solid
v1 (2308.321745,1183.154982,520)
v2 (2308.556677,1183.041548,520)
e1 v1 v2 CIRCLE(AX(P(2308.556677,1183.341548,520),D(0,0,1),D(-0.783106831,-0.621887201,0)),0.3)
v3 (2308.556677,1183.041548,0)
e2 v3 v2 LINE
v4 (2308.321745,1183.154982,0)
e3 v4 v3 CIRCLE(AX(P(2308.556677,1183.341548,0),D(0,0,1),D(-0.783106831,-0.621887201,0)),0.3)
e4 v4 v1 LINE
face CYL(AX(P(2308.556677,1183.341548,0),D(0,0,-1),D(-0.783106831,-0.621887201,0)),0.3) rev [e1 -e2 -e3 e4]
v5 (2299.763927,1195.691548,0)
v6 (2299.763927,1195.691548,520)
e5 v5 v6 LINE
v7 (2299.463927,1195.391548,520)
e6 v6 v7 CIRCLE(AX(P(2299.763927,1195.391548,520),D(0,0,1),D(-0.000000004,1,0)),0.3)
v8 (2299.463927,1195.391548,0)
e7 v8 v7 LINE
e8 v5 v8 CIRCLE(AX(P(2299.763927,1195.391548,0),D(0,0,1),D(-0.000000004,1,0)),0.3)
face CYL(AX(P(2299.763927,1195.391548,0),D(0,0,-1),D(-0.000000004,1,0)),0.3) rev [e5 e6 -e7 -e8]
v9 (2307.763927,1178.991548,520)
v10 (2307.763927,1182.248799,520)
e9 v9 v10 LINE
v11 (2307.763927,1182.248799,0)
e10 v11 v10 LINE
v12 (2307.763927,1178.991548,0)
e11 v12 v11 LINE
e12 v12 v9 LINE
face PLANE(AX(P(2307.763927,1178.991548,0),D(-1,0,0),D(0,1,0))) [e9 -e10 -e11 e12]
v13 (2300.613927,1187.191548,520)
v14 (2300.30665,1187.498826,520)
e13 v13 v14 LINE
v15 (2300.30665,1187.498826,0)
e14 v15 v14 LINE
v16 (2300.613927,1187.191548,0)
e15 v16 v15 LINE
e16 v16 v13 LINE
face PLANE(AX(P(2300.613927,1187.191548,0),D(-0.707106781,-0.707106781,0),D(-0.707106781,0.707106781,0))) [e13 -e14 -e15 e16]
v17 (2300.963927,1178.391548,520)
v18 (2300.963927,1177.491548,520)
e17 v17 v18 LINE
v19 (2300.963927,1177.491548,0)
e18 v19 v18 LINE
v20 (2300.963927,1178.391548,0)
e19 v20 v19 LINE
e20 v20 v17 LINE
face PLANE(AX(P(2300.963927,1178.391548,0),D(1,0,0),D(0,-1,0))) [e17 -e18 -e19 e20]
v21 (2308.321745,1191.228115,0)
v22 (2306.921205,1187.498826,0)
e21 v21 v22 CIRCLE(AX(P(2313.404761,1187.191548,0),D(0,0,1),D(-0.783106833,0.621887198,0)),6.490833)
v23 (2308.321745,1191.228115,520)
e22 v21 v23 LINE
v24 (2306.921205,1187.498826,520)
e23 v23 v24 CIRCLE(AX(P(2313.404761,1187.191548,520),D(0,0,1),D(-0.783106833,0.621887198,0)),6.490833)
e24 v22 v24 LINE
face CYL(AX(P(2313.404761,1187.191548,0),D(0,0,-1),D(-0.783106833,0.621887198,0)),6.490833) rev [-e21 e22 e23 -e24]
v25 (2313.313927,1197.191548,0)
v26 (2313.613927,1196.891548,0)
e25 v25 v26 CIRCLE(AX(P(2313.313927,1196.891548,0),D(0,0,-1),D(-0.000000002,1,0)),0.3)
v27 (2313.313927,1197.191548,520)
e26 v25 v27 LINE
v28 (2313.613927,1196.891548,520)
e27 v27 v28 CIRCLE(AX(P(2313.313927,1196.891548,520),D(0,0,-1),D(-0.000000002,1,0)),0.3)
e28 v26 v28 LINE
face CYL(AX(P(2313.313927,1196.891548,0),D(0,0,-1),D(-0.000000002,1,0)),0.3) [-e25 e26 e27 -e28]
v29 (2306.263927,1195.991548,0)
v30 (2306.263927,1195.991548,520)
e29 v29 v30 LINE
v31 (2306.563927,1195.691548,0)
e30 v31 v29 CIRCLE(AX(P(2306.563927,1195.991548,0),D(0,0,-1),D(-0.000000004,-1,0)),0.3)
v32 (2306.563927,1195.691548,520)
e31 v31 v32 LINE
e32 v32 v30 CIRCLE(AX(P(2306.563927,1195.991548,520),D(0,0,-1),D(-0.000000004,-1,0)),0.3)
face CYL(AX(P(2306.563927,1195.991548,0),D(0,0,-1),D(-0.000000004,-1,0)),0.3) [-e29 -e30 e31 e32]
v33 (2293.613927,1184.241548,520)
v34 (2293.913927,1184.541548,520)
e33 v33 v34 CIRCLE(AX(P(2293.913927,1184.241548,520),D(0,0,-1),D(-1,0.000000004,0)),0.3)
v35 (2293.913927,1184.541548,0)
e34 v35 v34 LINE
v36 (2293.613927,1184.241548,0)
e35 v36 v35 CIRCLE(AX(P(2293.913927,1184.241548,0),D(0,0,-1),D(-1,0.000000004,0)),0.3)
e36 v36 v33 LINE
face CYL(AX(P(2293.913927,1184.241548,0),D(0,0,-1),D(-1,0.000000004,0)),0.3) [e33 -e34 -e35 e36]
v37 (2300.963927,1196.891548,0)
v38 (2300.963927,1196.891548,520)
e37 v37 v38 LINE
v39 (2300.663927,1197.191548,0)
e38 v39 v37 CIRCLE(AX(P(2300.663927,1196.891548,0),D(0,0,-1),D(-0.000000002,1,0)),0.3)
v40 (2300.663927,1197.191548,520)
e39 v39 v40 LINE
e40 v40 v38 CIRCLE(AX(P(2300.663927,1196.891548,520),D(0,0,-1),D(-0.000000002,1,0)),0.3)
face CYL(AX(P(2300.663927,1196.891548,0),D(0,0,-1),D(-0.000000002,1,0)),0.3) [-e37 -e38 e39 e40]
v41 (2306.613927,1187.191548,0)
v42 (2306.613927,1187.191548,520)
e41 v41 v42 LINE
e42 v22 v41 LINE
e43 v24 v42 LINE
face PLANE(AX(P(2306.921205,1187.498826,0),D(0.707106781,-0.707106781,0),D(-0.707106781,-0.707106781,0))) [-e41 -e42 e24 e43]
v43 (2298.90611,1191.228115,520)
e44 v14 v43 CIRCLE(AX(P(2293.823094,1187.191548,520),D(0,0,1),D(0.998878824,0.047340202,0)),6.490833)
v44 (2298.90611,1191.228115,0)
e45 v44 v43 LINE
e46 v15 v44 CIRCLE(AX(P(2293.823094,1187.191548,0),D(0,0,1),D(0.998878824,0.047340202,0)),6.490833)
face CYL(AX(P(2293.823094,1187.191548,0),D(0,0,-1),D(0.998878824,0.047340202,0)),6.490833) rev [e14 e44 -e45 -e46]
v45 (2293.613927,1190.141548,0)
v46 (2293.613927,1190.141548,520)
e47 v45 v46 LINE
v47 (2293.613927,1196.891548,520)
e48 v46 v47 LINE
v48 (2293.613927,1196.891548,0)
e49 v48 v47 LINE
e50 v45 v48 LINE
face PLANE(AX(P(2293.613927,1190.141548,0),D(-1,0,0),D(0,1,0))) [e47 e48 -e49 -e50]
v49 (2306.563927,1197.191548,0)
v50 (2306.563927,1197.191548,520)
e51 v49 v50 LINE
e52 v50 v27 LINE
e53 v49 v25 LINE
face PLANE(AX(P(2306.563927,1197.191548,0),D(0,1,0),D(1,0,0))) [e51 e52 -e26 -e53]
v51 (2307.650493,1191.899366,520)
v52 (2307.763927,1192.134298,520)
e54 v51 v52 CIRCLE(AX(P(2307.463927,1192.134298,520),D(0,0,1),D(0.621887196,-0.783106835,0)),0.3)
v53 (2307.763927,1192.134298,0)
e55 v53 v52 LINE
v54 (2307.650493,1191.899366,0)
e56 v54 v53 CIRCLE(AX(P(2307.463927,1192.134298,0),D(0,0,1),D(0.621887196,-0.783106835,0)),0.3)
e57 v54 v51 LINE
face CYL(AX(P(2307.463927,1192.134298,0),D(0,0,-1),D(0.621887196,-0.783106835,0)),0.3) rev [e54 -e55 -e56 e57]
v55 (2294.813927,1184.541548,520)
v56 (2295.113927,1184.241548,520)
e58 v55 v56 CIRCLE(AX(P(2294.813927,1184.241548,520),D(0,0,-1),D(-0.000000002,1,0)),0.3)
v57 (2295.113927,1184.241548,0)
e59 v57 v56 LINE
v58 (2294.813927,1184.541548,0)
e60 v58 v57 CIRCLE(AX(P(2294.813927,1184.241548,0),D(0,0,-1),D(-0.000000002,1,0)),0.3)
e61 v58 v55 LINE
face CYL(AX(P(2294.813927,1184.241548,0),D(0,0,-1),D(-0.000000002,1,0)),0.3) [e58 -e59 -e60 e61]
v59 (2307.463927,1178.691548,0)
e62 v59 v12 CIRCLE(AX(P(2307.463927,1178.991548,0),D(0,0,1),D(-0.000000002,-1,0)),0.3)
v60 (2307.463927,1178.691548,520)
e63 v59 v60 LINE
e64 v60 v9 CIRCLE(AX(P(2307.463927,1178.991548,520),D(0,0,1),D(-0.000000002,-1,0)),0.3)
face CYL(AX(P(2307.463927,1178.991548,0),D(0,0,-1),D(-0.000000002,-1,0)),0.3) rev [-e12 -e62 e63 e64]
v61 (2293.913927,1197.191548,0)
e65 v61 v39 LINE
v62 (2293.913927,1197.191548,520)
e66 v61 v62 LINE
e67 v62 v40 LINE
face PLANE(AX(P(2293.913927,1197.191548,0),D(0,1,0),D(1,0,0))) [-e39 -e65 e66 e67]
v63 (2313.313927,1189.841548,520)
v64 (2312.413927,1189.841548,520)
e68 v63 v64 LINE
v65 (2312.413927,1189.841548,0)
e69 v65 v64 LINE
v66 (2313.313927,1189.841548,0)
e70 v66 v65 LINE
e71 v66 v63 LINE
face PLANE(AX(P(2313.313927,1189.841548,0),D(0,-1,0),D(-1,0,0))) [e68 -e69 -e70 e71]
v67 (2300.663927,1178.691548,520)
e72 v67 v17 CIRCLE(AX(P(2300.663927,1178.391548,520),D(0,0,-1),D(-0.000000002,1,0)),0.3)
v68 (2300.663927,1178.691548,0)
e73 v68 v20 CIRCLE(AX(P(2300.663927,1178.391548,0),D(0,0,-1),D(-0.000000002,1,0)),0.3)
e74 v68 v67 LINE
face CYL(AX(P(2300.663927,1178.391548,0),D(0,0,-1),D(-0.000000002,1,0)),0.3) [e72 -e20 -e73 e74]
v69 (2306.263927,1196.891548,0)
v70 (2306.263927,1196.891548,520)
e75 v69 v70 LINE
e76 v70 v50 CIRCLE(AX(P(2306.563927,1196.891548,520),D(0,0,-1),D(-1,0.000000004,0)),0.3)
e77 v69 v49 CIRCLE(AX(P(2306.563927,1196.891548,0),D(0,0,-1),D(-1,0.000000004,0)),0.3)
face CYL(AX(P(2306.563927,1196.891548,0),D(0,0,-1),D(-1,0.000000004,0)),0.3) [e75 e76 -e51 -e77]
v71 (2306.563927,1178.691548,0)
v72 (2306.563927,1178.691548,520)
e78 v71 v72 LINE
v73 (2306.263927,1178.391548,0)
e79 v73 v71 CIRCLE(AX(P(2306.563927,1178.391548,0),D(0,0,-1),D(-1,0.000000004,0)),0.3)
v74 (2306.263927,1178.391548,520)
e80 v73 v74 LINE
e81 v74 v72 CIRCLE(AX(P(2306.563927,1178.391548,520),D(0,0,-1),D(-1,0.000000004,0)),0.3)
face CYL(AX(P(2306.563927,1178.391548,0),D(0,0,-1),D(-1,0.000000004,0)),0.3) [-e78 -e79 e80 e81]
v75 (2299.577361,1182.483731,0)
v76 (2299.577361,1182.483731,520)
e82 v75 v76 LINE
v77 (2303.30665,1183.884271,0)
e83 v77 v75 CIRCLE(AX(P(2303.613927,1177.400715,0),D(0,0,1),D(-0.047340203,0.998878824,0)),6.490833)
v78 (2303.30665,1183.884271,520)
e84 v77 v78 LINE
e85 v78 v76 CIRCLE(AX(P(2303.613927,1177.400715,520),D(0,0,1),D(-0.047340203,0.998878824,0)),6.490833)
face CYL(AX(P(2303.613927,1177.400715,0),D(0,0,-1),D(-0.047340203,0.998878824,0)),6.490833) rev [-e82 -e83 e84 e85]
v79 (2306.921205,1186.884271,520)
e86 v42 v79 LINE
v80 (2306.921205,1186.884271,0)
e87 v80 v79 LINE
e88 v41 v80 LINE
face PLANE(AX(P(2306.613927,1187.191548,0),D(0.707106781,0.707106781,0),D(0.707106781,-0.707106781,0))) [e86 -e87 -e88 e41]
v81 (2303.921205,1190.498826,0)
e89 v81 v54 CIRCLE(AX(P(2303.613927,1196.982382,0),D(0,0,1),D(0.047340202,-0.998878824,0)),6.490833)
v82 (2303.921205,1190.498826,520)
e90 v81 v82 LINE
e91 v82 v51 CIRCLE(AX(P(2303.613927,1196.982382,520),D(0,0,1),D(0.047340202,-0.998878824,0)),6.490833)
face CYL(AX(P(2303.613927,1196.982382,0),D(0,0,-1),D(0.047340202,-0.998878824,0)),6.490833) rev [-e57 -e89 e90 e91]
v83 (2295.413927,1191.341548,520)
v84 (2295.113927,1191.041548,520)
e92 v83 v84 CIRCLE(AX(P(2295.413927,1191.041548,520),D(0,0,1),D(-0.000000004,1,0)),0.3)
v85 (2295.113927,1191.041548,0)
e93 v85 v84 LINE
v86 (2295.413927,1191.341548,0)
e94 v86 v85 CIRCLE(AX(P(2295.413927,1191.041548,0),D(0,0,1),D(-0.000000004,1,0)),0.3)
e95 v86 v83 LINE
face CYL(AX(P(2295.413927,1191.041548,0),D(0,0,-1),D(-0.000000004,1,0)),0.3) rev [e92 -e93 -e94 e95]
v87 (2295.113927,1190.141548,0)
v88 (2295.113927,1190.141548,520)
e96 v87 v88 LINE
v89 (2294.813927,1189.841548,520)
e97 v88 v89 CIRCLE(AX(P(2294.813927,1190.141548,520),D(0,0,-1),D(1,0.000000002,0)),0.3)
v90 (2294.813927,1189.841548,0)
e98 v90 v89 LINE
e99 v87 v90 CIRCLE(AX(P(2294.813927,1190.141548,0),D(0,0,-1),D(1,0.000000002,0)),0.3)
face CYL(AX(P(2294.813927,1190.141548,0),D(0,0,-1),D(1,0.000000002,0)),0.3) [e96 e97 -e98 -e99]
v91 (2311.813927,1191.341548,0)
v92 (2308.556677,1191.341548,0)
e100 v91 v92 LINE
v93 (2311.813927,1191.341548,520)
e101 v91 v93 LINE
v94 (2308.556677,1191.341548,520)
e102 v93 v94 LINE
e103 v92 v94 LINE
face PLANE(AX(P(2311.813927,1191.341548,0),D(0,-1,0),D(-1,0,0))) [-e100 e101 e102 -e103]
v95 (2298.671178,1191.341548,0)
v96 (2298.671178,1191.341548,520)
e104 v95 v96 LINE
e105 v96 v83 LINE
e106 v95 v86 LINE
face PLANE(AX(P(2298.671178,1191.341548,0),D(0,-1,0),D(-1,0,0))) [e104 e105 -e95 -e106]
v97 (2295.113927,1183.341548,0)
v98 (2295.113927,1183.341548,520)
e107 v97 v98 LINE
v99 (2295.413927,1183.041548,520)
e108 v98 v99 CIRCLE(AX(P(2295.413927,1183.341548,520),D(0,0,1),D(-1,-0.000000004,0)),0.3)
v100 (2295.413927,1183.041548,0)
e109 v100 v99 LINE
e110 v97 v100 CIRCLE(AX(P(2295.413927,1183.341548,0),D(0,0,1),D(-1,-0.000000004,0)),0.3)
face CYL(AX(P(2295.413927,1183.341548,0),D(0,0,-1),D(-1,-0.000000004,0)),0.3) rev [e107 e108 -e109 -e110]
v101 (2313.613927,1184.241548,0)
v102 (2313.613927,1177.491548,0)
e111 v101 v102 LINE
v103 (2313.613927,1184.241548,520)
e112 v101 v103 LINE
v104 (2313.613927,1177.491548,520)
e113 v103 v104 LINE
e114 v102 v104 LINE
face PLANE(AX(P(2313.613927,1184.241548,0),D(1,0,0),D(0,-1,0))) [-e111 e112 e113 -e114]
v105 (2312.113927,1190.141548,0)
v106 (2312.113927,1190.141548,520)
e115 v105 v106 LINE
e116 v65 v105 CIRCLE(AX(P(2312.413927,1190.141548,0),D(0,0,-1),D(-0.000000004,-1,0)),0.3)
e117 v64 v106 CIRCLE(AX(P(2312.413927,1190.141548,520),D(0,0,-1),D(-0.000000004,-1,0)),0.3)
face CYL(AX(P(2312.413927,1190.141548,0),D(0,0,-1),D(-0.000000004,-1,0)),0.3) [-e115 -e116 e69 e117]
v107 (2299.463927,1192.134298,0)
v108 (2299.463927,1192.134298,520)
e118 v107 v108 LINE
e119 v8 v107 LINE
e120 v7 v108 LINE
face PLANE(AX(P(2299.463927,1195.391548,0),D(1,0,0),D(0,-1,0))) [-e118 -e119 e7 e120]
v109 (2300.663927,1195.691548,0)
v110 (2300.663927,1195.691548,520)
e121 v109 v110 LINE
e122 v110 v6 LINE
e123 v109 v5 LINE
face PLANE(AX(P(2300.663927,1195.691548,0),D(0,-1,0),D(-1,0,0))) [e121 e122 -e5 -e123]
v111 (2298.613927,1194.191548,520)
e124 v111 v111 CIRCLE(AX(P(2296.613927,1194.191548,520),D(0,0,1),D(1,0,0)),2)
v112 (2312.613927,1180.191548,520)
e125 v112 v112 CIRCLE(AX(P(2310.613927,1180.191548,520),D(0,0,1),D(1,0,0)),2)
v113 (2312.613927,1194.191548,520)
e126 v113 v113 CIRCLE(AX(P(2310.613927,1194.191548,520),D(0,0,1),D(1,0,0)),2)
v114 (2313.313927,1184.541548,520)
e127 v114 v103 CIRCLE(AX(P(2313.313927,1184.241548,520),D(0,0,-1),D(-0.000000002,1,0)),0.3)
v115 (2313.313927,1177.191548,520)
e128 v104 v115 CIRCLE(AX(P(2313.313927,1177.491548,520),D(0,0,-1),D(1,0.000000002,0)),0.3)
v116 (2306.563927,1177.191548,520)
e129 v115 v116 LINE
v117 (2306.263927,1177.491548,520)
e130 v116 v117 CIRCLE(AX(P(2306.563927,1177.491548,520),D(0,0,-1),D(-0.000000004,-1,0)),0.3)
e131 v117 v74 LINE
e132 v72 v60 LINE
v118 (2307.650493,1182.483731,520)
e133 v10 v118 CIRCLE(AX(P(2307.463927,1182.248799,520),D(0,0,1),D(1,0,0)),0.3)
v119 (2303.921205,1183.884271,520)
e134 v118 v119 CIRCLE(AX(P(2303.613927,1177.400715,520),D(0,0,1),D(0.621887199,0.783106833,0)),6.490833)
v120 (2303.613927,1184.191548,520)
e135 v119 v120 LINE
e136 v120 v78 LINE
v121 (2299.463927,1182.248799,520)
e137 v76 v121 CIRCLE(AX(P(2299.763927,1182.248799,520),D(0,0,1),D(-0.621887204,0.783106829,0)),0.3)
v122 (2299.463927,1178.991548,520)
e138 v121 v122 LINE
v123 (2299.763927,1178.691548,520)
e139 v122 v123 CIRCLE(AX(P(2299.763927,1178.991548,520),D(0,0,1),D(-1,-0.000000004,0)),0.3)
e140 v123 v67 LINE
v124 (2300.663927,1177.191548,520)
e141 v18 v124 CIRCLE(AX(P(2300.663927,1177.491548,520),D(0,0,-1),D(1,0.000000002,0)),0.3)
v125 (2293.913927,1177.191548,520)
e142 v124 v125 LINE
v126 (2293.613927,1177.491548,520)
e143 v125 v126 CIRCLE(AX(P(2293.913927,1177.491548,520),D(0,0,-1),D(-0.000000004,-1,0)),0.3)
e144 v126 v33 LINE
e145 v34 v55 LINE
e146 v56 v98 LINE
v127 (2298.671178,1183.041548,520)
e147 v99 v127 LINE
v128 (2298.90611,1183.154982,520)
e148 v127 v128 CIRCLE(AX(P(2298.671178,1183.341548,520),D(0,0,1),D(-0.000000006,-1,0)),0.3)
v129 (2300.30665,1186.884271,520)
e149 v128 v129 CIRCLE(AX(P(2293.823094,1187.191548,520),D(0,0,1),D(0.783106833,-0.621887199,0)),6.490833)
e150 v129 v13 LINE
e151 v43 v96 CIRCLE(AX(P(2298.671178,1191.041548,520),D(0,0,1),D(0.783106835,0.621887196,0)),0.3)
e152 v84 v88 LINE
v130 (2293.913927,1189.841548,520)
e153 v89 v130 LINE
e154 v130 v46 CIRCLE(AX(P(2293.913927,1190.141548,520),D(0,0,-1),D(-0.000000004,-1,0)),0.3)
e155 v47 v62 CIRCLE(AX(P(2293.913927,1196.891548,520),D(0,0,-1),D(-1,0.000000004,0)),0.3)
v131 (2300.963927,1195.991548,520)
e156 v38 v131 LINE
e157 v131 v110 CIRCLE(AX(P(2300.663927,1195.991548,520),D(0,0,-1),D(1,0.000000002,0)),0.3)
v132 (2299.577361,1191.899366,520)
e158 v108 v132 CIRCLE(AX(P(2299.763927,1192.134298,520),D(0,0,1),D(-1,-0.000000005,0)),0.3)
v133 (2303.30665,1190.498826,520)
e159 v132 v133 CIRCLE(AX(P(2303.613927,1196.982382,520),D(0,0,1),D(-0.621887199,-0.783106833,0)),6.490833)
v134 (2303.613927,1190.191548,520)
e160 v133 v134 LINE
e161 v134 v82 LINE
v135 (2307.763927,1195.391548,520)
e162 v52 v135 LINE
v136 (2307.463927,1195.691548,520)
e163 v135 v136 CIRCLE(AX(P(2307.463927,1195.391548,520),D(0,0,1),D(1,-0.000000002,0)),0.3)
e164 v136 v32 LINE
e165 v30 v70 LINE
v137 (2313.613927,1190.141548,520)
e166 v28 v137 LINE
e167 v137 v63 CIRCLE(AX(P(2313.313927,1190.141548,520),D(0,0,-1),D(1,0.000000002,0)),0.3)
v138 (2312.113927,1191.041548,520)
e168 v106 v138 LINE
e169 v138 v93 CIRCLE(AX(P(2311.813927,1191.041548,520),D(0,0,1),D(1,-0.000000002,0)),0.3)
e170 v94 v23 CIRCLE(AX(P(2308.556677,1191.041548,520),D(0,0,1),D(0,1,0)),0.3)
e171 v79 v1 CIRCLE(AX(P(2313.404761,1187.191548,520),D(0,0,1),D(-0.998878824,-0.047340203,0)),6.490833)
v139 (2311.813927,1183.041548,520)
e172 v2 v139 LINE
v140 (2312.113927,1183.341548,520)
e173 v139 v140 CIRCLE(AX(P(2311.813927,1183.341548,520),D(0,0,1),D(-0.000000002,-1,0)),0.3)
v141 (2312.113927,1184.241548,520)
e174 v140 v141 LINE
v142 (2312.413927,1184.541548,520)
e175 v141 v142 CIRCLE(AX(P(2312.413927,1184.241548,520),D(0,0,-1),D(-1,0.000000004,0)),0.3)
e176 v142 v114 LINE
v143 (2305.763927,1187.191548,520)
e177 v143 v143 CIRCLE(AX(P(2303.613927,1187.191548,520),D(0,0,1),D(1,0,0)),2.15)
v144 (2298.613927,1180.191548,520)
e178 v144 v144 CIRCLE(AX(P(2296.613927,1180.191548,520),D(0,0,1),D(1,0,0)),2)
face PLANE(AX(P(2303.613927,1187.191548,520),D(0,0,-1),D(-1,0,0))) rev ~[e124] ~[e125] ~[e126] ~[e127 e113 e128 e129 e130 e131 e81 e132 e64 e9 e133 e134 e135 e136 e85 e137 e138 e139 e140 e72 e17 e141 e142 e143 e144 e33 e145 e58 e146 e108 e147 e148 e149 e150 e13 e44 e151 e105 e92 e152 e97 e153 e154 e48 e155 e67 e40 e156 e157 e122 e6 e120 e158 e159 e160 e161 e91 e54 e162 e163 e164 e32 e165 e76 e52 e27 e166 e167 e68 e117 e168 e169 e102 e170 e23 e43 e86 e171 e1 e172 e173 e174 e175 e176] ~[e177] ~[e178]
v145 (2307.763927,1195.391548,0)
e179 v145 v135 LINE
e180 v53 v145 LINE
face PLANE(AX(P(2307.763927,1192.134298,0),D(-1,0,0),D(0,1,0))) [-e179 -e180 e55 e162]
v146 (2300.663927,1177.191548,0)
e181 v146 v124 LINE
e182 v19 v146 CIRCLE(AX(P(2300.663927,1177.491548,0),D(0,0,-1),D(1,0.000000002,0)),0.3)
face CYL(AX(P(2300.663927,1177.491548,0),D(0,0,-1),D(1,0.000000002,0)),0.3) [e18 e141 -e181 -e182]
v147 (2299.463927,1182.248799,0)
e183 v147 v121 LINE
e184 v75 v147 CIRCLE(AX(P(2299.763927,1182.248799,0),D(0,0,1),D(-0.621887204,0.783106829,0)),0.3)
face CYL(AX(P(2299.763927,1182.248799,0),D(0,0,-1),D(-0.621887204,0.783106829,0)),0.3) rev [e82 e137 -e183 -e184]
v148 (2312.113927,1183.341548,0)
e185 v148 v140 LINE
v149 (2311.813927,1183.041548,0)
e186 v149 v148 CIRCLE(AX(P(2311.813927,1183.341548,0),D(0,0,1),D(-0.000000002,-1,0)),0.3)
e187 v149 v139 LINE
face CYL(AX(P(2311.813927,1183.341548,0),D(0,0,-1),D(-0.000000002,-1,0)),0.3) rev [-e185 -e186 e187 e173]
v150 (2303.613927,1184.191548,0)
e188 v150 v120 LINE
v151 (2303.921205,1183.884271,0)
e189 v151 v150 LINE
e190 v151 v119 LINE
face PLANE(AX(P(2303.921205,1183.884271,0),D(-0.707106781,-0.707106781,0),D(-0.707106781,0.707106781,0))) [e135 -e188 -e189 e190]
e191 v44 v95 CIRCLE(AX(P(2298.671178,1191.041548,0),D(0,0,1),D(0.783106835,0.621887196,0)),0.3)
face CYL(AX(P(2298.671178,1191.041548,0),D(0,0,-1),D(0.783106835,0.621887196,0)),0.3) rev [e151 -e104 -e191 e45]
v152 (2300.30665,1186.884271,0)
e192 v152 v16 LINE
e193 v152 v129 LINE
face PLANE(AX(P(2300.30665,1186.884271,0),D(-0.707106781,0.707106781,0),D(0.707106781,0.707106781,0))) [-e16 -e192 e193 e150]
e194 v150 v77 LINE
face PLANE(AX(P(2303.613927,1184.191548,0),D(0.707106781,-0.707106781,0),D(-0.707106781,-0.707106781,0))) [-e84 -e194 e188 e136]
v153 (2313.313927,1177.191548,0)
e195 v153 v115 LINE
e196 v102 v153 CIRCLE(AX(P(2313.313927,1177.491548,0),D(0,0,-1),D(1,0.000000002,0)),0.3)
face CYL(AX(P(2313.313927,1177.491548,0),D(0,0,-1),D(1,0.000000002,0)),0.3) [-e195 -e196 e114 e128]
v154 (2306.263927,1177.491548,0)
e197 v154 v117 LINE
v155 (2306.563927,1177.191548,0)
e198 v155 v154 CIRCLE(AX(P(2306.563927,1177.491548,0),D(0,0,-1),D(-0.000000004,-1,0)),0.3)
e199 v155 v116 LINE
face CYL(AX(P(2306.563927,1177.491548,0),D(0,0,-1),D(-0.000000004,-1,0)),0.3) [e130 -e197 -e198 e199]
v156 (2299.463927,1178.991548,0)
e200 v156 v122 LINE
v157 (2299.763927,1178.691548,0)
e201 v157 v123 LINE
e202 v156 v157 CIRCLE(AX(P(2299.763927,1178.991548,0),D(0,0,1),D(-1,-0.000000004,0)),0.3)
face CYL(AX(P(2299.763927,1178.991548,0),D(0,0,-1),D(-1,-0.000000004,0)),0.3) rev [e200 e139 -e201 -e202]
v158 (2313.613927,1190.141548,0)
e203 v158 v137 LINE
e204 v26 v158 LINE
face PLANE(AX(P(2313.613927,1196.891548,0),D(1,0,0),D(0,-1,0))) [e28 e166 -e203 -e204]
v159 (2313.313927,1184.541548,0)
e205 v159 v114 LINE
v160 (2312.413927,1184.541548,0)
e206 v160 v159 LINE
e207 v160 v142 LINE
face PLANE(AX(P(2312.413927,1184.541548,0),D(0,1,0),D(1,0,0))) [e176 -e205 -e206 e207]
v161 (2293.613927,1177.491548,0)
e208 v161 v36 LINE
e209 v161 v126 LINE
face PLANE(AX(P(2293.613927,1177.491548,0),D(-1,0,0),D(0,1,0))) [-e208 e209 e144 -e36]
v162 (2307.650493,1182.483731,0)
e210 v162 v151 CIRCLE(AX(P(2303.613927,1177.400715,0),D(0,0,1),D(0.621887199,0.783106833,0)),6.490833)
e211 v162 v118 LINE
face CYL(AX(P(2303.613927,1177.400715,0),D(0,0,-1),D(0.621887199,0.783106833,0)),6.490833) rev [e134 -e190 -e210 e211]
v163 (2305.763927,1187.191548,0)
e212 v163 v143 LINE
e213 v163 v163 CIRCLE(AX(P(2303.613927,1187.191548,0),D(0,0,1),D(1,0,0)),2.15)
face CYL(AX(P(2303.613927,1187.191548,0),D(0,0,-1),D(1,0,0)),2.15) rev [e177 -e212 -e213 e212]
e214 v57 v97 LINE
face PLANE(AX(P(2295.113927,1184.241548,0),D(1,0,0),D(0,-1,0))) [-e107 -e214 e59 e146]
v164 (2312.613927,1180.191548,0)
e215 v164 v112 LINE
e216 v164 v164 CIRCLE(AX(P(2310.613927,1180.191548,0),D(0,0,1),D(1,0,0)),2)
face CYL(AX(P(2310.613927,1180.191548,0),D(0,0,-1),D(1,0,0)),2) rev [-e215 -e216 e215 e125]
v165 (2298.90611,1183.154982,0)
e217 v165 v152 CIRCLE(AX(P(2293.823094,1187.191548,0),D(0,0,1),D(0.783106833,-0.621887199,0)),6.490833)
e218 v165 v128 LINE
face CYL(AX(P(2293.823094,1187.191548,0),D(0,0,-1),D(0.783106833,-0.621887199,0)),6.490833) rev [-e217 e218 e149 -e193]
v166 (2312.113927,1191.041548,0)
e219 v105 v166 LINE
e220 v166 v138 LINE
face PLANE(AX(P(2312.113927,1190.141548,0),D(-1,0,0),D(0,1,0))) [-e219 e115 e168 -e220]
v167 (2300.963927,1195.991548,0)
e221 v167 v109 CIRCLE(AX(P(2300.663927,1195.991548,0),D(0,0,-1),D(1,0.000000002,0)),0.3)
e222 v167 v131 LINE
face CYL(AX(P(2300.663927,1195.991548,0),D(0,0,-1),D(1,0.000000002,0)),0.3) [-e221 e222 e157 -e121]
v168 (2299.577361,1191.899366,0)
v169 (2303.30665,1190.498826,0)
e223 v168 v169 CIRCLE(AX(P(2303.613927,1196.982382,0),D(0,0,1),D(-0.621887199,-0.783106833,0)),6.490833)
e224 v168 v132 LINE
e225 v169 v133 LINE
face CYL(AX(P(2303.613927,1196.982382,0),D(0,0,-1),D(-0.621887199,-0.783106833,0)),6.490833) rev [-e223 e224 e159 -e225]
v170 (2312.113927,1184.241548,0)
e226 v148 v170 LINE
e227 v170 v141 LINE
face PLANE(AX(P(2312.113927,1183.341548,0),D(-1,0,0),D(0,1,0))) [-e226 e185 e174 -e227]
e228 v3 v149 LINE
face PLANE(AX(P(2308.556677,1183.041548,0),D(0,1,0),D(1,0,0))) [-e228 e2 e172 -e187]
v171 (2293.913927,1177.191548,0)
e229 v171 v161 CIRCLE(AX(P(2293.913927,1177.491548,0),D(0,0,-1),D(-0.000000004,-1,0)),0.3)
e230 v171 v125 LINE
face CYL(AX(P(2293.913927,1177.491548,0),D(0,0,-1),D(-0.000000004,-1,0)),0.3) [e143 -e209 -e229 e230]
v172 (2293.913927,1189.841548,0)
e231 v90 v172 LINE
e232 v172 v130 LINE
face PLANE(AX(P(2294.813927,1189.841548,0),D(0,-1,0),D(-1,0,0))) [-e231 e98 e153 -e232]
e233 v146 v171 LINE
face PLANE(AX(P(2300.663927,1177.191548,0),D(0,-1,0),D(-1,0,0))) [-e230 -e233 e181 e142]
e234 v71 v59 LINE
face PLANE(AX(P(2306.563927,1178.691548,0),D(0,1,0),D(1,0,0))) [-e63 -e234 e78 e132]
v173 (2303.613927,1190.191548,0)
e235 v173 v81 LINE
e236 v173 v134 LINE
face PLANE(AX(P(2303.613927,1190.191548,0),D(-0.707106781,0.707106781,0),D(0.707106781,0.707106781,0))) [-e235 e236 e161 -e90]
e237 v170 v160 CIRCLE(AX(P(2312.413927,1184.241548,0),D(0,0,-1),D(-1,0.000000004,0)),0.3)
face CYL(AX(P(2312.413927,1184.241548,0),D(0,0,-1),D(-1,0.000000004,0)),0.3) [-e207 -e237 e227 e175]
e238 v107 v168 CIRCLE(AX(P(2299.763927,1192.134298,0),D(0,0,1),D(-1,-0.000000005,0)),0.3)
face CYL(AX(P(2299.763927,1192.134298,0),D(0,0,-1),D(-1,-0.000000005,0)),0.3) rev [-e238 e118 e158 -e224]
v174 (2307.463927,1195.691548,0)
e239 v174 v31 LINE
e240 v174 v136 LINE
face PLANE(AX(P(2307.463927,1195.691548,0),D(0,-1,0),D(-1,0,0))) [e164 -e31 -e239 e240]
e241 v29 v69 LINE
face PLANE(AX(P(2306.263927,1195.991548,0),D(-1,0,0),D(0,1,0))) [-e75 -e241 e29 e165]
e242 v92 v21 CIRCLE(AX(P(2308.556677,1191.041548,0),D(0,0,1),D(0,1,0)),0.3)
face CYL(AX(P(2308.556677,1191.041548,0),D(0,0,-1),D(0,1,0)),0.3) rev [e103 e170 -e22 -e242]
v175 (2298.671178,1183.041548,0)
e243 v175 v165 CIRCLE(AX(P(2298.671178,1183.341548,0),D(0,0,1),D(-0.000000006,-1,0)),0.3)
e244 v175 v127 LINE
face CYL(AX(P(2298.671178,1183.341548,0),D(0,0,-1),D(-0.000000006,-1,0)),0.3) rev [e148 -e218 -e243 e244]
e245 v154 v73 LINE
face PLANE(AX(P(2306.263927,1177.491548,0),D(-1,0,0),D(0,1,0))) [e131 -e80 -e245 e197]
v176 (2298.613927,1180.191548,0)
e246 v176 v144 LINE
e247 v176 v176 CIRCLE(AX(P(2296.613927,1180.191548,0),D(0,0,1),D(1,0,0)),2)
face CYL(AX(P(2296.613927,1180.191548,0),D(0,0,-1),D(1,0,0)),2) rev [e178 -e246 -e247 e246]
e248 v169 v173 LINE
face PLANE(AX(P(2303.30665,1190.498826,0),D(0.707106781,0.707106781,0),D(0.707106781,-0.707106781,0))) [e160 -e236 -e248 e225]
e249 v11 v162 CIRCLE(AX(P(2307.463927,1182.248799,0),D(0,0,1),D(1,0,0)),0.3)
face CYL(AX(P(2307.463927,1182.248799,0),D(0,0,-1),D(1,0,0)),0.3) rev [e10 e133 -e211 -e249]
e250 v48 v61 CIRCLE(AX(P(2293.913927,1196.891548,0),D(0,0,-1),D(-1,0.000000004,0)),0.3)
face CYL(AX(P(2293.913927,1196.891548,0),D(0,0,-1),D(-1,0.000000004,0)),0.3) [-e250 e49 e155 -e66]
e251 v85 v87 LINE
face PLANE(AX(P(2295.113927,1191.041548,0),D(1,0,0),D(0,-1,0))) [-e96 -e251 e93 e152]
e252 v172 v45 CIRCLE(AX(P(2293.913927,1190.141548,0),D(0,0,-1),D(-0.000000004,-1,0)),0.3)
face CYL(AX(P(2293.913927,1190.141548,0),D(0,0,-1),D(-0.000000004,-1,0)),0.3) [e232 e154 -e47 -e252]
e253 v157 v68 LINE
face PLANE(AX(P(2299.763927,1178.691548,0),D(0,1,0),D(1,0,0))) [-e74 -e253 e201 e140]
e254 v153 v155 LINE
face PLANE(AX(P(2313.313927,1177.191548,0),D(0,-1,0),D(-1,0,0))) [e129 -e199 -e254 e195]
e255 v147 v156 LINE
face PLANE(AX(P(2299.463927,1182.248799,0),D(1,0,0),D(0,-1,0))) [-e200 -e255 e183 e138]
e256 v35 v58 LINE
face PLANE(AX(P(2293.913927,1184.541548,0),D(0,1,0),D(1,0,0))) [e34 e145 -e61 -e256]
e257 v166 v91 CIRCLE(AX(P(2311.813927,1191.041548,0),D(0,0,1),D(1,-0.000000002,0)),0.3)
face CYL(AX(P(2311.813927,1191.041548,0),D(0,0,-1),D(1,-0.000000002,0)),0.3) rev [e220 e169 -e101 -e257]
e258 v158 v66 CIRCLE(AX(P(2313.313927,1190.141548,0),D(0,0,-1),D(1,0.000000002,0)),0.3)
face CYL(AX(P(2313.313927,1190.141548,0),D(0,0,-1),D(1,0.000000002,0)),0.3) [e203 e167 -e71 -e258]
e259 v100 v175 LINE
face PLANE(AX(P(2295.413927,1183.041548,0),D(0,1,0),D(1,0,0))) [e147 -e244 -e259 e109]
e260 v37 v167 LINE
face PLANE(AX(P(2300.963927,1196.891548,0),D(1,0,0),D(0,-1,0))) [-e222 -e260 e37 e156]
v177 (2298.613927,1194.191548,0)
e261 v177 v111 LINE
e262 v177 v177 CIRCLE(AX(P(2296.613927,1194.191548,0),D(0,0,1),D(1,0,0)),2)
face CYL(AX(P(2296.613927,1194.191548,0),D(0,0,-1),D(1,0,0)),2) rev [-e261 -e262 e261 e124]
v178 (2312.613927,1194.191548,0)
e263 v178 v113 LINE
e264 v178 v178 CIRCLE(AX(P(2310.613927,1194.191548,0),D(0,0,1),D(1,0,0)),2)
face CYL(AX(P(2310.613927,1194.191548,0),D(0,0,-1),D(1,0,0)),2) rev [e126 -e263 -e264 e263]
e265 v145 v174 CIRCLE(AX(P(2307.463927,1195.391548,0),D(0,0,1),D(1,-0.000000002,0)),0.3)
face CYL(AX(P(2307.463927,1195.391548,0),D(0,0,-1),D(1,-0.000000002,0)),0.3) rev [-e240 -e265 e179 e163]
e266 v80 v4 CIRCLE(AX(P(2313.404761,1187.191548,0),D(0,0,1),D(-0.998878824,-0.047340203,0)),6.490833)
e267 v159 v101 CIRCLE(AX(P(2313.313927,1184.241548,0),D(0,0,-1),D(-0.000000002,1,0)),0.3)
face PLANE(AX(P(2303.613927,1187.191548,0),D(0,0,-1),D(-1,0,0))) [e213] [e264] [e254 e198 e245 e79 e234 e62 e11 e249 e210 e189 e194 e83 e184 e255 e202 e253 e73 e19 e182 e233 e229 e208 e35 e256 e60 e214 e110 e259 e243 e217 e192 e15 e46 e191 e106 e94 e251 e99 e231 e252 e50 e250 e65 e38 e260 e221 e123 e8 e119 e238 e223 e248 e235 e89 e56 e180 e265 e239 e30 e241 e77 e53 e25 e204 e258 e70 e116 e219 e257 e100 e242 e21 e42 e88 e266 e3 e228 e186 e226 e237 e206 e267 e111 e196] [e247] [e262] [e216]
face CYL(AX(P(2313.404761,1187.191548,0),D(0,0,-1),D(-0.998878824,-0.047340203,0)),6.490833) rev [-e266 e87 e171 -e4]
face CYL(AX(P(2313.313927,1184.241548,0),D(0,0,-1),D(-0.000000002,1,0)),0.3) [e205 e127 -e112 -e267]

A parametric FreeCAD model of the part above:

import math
import FreeCAD as App
import Part
import Sketcher

V = App.Vector

doc = App.newDocument("Part")
params = doc.addObject("Spreadsheet::Sheet", "Params")
for row, (alias, value) in enumerate([
    ("sketch1_diameter", "4 mm"),
    ("sketch1_diameter2", "4.3 mm"),
    ("sketch1_radius", "0.3 mm"),
    ("sketch1_width", "0.9 mm"),
    ("sketch1_width2", "6.75 mm"),
    ("pad1_length", "520 mm"),
], start=1):
    params.set(f"A{row}", alias)
    params.set(f"B{row}", "=" + value)
    params.setAlias(f"B{row}", alias)

body = doc.addObject("PartDesign::Body", "Body")

sketch1 = body.newObject("Sketcher::SketchObject", "Sketch")
sketch1.AttachmentSupport = (doc.getObject("XY_Plane"), [""])
sketch1.MapMode = "FlatFace"
sketch1.addGeometry([
    Part.LineSegment(V(2307.76, 1195.39, 0), V(2307.76, 1192.13, 0)),
    Part.ArcOfCircle(Part.Circle(V(2307.46, 1192.13, 0), V(0, 0, 1), 0.3), math.radians(-52), math.radians(0)),
    Part.ArcOfCircle(Part.Circle(V(2303.61, 1196.98, 0), V(0, 0, 1), 6.49), math.radians(-87), math.radians(-52)),
    Part.LineSegment(V(2303.92, 1190.5, 0), V(2303.61, 1190.19, 0)),
    Part.LineSegment(V(2303.61, 1190.19, 0), V(2303.31, 1190.5, 0)),
    Part.ArcOfCircle(Part.Circle(V(2303.61, 1196.98, 0), V(0, 0, 1), 6.49), math.radians(-128), math.radians(-93)),
    Part.ArcOfCircle(Part.Circle(V(2299.76, 1192.13, 0), V(0, 0, 1), 0.3), math.radians(-180), math.radians(-128)),
    Part.LineSegment(V(2299.46, 1192.13, 0), V(2299.46, 1195.39, 0)),
    Part.ArcOfCircle(Part.Circle(V(2299.76, 1195.39, 0), V(0, 0, 1), 0.3), math.radians(90), math.radians(180)),
    Part.LineSegment(V(2299.76, 1195.69, 0), V(2300.66, 1195.69, 0)),
    Part.ArcOfCircle(Part.Circle(V(2300.66, 1195.99, 0), V(0, 0, 1), 0.3), math.radians(-90), math.radians(0)),
    Part.LineSegment(V(2300.96, 1195.99, 0), V(2300.96, 1196.89, 0)),
    Part.ArcOfCircle(Part.Circle(V(2300.66, 1196.89, 0), V(0, 0, 1), 0.3), math.radians(0), math.radians(90)),
    Part.LineSegment(V(2300.66, 1197.19, 0), V(2293.91, 1197.19, 0)),
    Part.ArcOfCircle(Part.Circle(V(2293.91, 1196.89, 0), V(0, 0, 1), 0.3), math.radians(90), math.radians(180)),
    Part.LineSegment(V(2293.61, 1196.89, 0), V(2293.61, 1190.14, 0)),
    Part.ArcOfCircle(Part.Circle(V(2293.91, 1190.14, 0), V(0, 0, 1), 0.3), math.radians(-180), math.radians(-90)),
    Part.LineSegment(V(2293.91, 1189.84, 0), V(2294.81, 1189.84, 0)),
    Part.ArcOfCircle(Part.Circle(V(2294.81, 1190.14, 0), V(0, 0, 1), 0.3), math.radians(-90), math.radians(0)),
    Part.LineSegment(V(2295.11, 1190.14, 0), V(2295.11, 1191.04, 0)),
    Part.ArcOfCircle(Part.Circle(V(2295.41, 1191.04, 0), V(0, 0, 1), 0.3), math.radians(90), math.radians(180)),
    Part.LineSegment(V(2295.41, 1191.34, 0), V(2298.67, 1191.34, 0)),
    Part.ArcOfCircle(Part.Circle(V(2298.67, 1191.04, 0), V(0, 0, 1), 0.3), math.radians(38), math.radians(90)),
    Part.ArcOfCircle(Part.Circle(V(2293.82, 1187.19, 0), V(0, 0, 1), 6.49), math.radians(3), math.radians(38)),
    Part.LineSegment(V(2300.31, 1187.5, 0), V(2300.61, 1187.19, 0)),
    Part.LineSegment(V(2300.61, 1187.19, 0), V(2300.31, 1186.88, 0)),
    Part.ArcOfCircle(Part.Circle(V(2293.82, 1187.19, 0), V(0, 0, 1), 6.49), math.radians(-38), math.radians(-3)),
    Part.ArcOfCircle(Part.Circle(V(2298.67, 1183.34, 0), V(0, 0, 1), 0.3), math.radians(-90), math.radians(-38)),
    Part.LineSegment(V(2298.67, 1183.04, 0), V(2295.41, 1183.04, 0)),
    Part.ArcOfCircle(Part.Circle(V(2295.41, 1183.34, 0), V(0, 0, 1), 0.3), math.radians(-180), math.radians(-90)),
    Part.LineSegment(V(2295.11, 1183.34, 0), V(2295.11, 1184.24, 0)),
    Part.ArcOfCircle(Part.Circle(V(2294.81, 1184.24, 0), V(0, 0, 1), 0.3), math.radians(0), math.radians(90)),
    Part.LineSegment(V(2294.81, 1184.54, 0), V(2293.91, 1184.54, 0)),
    Part.ArcOfCircle(Part.Circle(V(2293.91, 1184.24, 0), V(0, 0, 1), 0.3), math.radians(90), math.radians(180)),
    Part.LineSegment(V(2293.61, 1184.24, 0), V(2293.61, 1177.49, 0)),
    Part.ArcOfCircle(Part.Circle(V(2293.91, 1177.49, 0), V(0, 0, 1), 0.3), math.radians(-180), math.radians(-90)),
    Part.LineSegment(V(2293.91, 1177.19, 0), V(2300.66, 1177.19, 0)),
    Part.ArcOfCircle(Part.Circle(V(2300.66, 1177.49, 0), V(0, 0, 1), 0.3), math.radians(-90), math.radians(0)),
    Part.LineSegment(V(2300.96, 1177.49, 0), V(2300.96, 1178.39, 0)),
    Part.ArcOfCircle(Part.Circle(V(2300.66, 1178.39, 0), V(0, 0, 1), 0.3), math.radians(0), math.radians(90)),
    Part.LineSegment(V(2300.66, 1178.69, 0), V(2299.76, 1178.69, 0)),
    Part.ArcOfCircle(Part.Circle(V(2299.76, 1178.99, 0), V(0, 0, 1), 0.3), math.radians(-180), math.radians(-90)),
    Part.LineSegment(V(2299.46, 1178.99, 0), V(2299.46, 1182.25, 0)),
    Part.ArcOfCircle(Part.Circle(V(2299.76, 1182.25, 0), V(0, 0, 1), 0.3), math.radians(128), math.radians(180)),
    Part.ArcOfCircle(Part.Circle(V(2303.61, 1177.4, 0), V(0, 0, 1), 6.49), math.radians(93), math.radians(128)),
    Part.LineSegment(V(2303.31, 1183.88, 0), V(2303.61, 1184.19, 0)),
    Part.LineSegment(V(2303.61, 1184.19, 0), V(2303.92, 1183.88, 0)),
    Part.ArcOfCircle(Part.Circle(V(2303.61, 1177.4, 0), V(0, 0, 1), 6.49), math.radians(52), math.radians(87)),
    Part.ArcOfCircle(Part.Circle(V(2307.46, 1182.25, 0), V(0, 0, 1), 0.3), math.radians(0), math.radians(52)),
    Part.LineSegment(V(2307.76, 1182.25, 0), V(2307.76, 1178.99, 0)),
    Part.ArcOfCircle(Part.Circle(V(2307.46, 1178.99, 0), V(0, 0, 1), 0.3), math.radians(-90), math.radians(0)),
    Part.LineSegment(V(2307.46, 1178.69, 0), V(2306.56, 1178.69, 0)),
    Part.ArcOfCircle(Part.Circle(V(2306.56, 1178.39, 0), V(0, 0, 1), 0.3), math.radians(90), math.radians(180)),
    Part.LineSegment(V(2306.26, 1178.39, 0), V(2306.26, 1177.49, 0)),
    Part.ArcOfCircle(Part.Circle(V(2306.56, 1177.49, 0), V(0, 0, 1), 0.3), math.radians(-180), math.radians(-90)),
    Part.LineSegment(V(2306.56, 1177.19, 0), V(2313.31, 1177.19, 0)),
    Part.ArcOfCircle(Part.Circle(V(2313.31, 1177.49, 0), V(0, 0, 1), 0.3), math.radians(-90), math.radians(0)),
    Part.LineSegment(V(2313.61, 1177.49, 0), V(2313.61, 1184.24, 0)),
    Part.ArcOfCircle(Part.Circle(V(2313.31, 1184.24, 0), V(0, 0, 1), 0.3), math.radians(0), math.radians(90)),
    Part.LineSegment(V(2313.31, 1184.54, 0), V(2312.41, 1184.54, 0)),
    Part.ArcOfCircle(Part.Circle(V(2312.41, 1184.24, 0), V(0, 0, 1), 0.3), math.radians(90), math.radians(180)),
    Part.LineSegment(V(2312.11, 1184.24, 0), V(2312.11, 1183.34, 0)),
    Part.ArcOfCircle(Part.Circle(V(2311.81, 1183.34, 0), V(0, 0, 1), 0.3), math.radians(-90), math.radians(0)),
    Part.LineSegment(V(2311.81, 1183.04, 0), V(2308.56, 1183.04, 0)),
    Part.ArcOfCircle(Part.Circle(V(2308.56, 1183.34, 0), V(0, 0, 1), 0.3), math.radians(-142), math.radians(-90)),
    Part.ArcOfCircle(Part.Circle(V(2313.4, 1187.19, 0), V(0, 0, 1), 6.49), math.radians(-177), math.radians(-142)),
    Part.LineSegment(V(2306.92, 1186.88, 0), V(2306.61, 1187.19, 0)),
    Part.LineSegment(V(2306.61, 1187.19, 0), V(2306.92, 1187.5, 0)),
    Part.ArcOfCircle(Part.Circle(V(2313.4, 1187.19, 0), V(0, 0, 1), 6.49), math.radians(142), math.radians(177)),
    Part.ArcOfCircle(Part.Circle(V(2308.56, 1191.04, 0), V(0, 0, 1), 0.3), math.radians(90), math.radians(142)),
    Part.LineSegment(V(2308.56, 1191.34, 0), V(2311.81, 1191.34, 0)),
    Part.ArcOfCircle(Part.Circle(V(2311.81, 1191.04, 0), V(0, 0, 1), 0.3), math.radians(0), math.radians(90)),
    Part.LineSegment(V(2312.11, 1191.04, 0), V(2312.11, 1190.14, 0)),
    Part.ArcOfCircle(Part.Circle(V(2312.41, 1190.14, 0), V(0, 0, 1), 0.3), math.radians(-180), math.radians(-90)),
    Part.LineSegment(V(2312.41, 1189.84, 0), V(2313.31, 1189.84, 0)),
    Part.ArcOfCircle(Part.Circle(V(2313.31, 1190.14, 0), V(0, 0, 1), 0.3), math.radians(-90), math.radians(0)),
    Part.LineSegment(V(2313.61, 1190.14, 0), V(2313.61, 1196.89, 0)),
    Part.ArcOfCircle(Part.Circle(V(2313.31, 1196.89, 0), V(0, 0, 1), 0.3), math.radians(0), math.radians(90)),
    Part.LineSegment(V(2313.31, 1197.19, 0), V(2306.56, 1197.19, 0)),
    Part.ArcOfCircle(Part.Circle(V(2306.56, 1196.89, 0), V(0, 0, 1), 0.3), math.radians(90), math.radians(180)),
    Part.LineSegment(V(2306.26, 1196.89, 0), V(2306.26, 1195.99, 0)),
    Part.ArcOfCircle(Part.Circle(V(2306.56, 1195.99, 0), V(0, 0, 1), 0.3), math.radians(-180), math.radians(-90)),
    Part.LineSegment(V(2306.56, 1195.69, 0), V(2307.46, 1195.69, 0)),
    Part.ArcOfCircle(Part.Circle(V(2307.46, 1195.39, 0), V(0, 0, 1), 0.3), math.radians(0), math.radians(90)),
    Part.Circle(V(2310.61, 1180.19, 0), V(0, 0, 1), 2),
    Part.Circle(V(2296.61, 1180.19, 0), V(0, 0, 1), 2),
    Part.Circle(V(2310.61, 1194.19, 0), V(0, 0, 1), 2),
    Part.Circle(V(2303.61, 1187.19, 0), V(0, 0, 1), 2.15),
    Part.Circle(V(2296.61, 1194.19, 0), V(0, 0, 1), 2),
], False)
sketch1.addConstraint([
    Sketcher.Constraint("Tangent", 0, 2, 1, 2),
    Sketcher.Constraint("Tangent", 1, 1, 2, 2),
    Sketcher.Constraint("Coincident", 2, 1, 3, 1),
    Sketcher.Constraint("Coincident", 3, 2, 4, 1),
    Sketcher.Constraint("Coincident", 4, 2, 5, 2),
    Sketcher.Constraint("Tangent", 5, 1, 6, 2),
    Sketcher.Constraint("Tangent", 6, 1, 7, 1),
    Sketcher.Constraint("Tangent", 7, 2, 8, 2),
    Sketcher.Constraint("Tangent", 8, 1, 9, 1),
    Sketcher.Constraint("Tangent", 9, 2, 10, 1),
    Sketcher.Constraint("Tangent", 10, 2, 11, 1),
    Sketcher.Constraint("Tangent", 11, 2, 12, 1),
    Sketcher.Constraint("Tangent", 12, 2, 13, 1),
    Sketcher.Constraint("Tangent", 13, 2, 14, 1),
    Sketcher.Constraint("Tangent", 14, 2, 15, 1),
    Sketcher.Constraint("Tangent", 15, 2, 16, 1),
    Sketcher.Constraint("Tangent", 16, 2, 17, 1),
    Sketcher.Constraint("Tangent", 17, 2, 18, 1),
    Sketcher.Constraint("Tangent", 18, 2, 19, 1),
    Sketcher.Constraint("Tangent", 19, 2, 20, 2),
    Sketcher.Constraint("Tangent", 20, 1, 21, 1),
    Sketcher.Constraint("Tangent", 21, 2, 22, 2),
    Sketcher.Constraint("Tangent", 22, 1, 23, 2),
    Sketcher.Constraint("Coincident", 23, 1, 24, 1),
    Sketcher.Constraint("Coincident", 24, 2, 25, 1),
    Sketcher.Constraint("Coincident", 25, 2, 26, 2),
    Sketcher.Constraint("Tangent", 26, 1, 27, 2),
    Sketcher.Constraint("Tangent", 27, 1, 28, 1),
    Sketcher.Constraint("Tangent", 28, 2, 29, 2),
    Sketcher.Constraint("Tangent", 29, 1, 30, 1),
    Sketcher.Constraint("Tangent", 30, 2, 31, 1),
    Sketcher.Constraint("Tangent", 31, 2, 32, 1),
    Sketcher.Constraint("Tangent", 32, 2, 33, 1),
    Sketcher.Constraint("Tangent", 33, 2, 34, 1),
    Sketcher.Constraint("Tangent", 34, 2, 35, 1),
    Sketcher.Constraint("Tangent", 35, 2, 36, 1),
    Sketcher.Constraint("Tangent", 36, 2, 37, 1),
    Sketcher.Constraint("Tangent", 37, 2, 38, 1),
    Sketcher.Constraint("Tangent", 38, 2, 39, 1),
    Sketcher.Constraint("Tangent", 39, 2, 40, 1),
    Sketcher.Constraint("Tangent", 40, 2, 41, 2),
    Sketcher.Constraint("Tangent", 41, 1, 42, 1),
    Sketcher.Constraint("Tangent", 42, 2, 43, 2),
    Sketcher.Constraint("Tangent", 43, 1, 44, 2),
    Sketcher.Constraint("Coincident", 44, 1, 45, 1),
    Sketcher.Constraint("Coincident", 45, 2, 46, 1),
    Sketcher.Constraint("Coincident", 46, 2, 47, 2),
    Sketcher.Constraint("Tangent", 47, 1, 48, 2),
    Sketcher.Constraint("Tangent", 48, 1, 49, 1),
    Sketcher.Constraint("Tangent", 49, 2, 50, 2),
    Sketcher.Constraint("Tangent", 50, 1, 51, 1),
    Sketcher.Constraint("Tangent", 51, 2, 52, 1),
    Sketcher.Constraint("Tangent", 52, 2, 53, 1),
    Sketcher.Constraint("Tangent", 53, 2, 54, 1),
    Sketcher.Constraint("Tangent", 54, 2, 55, 1),
    Sketcher.Constraint("Tangent", 55, 2, 56, 1),
    Sketcher.Constraint("Tangent", 56, 2, 57, 1),
    Sketcher.Constraint("Tangent", 57, 2, 58, 1),
    Sketcher.Constraint("Tangent", 58, 2, 59, 1),
    Sketcher.Constraint("Tangent", 59, 2, 60, 1),
    Sketcher.Constraint("Tangent", 60, 2, 61, 1),
    Sketcher.Constraint("Tangent", 61, 2, 62, 2),
    Sketcher.Constraint("Tangent", 62, 1, 63, 1),
    Sketcher.Constraint("Tangent", 63, 2, 64, 2),
    Sketcher.Constraint("Tangent", 64, 1, 65, 2),
    Sketcher.Constraint("Coincident", 65, 1, 66, 1),
    Sketcher.Constraint("Coincident", 66, 2, 67, 1),
    Sketcher.Constraint("Coincident", 67, 2, 68, 2),
    Sketcher.Constraint("Tangent", 68, 1, 69, 2),
    Sketcher.Constraint("Tangent", 69, 1, 70, 1),
    Sketcher.Constraint("Tangent", 70, 2, 71, 2),
    Sketcher.Constraint("Tangent", 71, 1, 72, 1),
    Sketcher.Constraint("Tangent", 72, 2, 73, 1),
    Sketcher.Constraint("Tangent", 73, 2, 74, 1),
    Sketcher.Constraint("Tangent", 74, 2, 75, 1),
    Sketcher.Constraint("Tangent", 75, 2, 76, 1),
    Sketcher.Constraint("Tangent", 76, 2, 77, 1),
    Sketcher.Constraint("Tangent", 77, 2, 78, 1),
    Sketcher.Constraint("Tangent", 78, 2, 79, 1),
    Sketcher.Constraint("Tangent", 79, 2, 80, 1),
    Sketcher.Constraint("Tangent", 80, 2, 81, 1),
    Sketcher.Constraint("Tangent", 81, 2, 82, 1),
    Sketcher.Constraint("Tangent", 82, 2, 83, 2),
    Sketcher.Constraint("Tangent", 83, 1, 0, 1),
    Sketcher.Constraint("Vertical", 0),
    Sketcher.Constraint("Vertical", 7),
    Sketcher.Constraint("Horizontal", 9),
    Sketcher.Constraint("Vertical", 11),
    Sketcher.Constraint("Horizontal", 13),
    Sketcher.Constraint("Vertical", 15),
    Sketcher.Constraint("Horizontal", 17),
    Sketcher.Constraint("Vertical", 19),
    Sketcher.Constraint("Horizontal", 21),
    Sketcher.Constraint("Horizontal", 28),
    Sketcher.Constraint("Vertical", 30),
    Sketcher.Constraint("Horizontal", 32),
    Sketcher.Constraint("Vertical", 34),
    Sketcher.Constraint("Horizontal", 36),
    Sketcher.Constraint("Vertical", 38),
    Sketcher.Constraint("Horizontal", 40),
    Sketcher.Constraint("Vertical", 42),
    Sketcher.Constraint("Vertical", 49),
    Sketcher.Constraint("Horizontal", 51),
    Sketcher.Constraint("Vertical", 53),
    Sketcher.Constraint("Horizontal", 55),
    Sketcher.Constraint("Vertical", 57),
    Sketcher.Constraint("Horizontal", 59),
    Sketcher.Constraint("Vertical", 61),
    Sketcher.Constraint("Horizontal", 63),
    Sketcher.Constraint("Horizontal", 70),
    Sketcher.Constraint("Vertical", 72),
    Sketcher.Constraint("Horizontal", 74),
    Sketcher.Constraint("Vertical", 76),
    Sketcher.Constraint("Horizontal", 78),
    Sketcher.Constraint("Vertical", 80),
    Sketcher.Constraint("Horizontal", 82),
    Sketcher.Constraint("Coincident", 5, 3, 2, 3),
    Sketcher.Constraint("Coincident", 26, 3, 23, 3),
    Sketcher.Constraint("Coincident", 47, 3, 44, 3),
    Sketcher.Constraint("Coincident", 68, 3, 65, 3),
    Sketcher.Constraint("Equal", 2, 5),
    Sketcher.Constraint("Equal", 1, 6),
    Sketcher.Constraint("Equal", 6, 8),
    Sketcher.Constraint("Equal", 8, 10),
    Sketcher.Constraint("Equal", 10, 12),
    Sketcher.Constraint("Equal", 12, 14),
    Sketcher.Constraint("Equal", 14, 16),
    Sketcher.Constraint("Equal", 16, 18),
    Sketcher.Constraint("Equal", 18, 20),
    Sketcher.Constraint("Equal", 20, 22),
    Sketcher.Constraint("Equal", 5, 23),
    Sketcher.Constraint("Equal", 23, 26),
    Sketcher.Constraint("Equal", 22, 27),
    Sketcher.Constraint("Equal", 27, 29),
    Sketcher.Constraint("Equal", 29, 31),
    Sketcher.Constraint("Equal", 31, 33),
    Sketcher.Constraint("Equal", 33, 35),
    Sketcher.Constraint("Equal", 35, 37),
    Sketcher.Constraint("Equal", 37, 39),
    Sketcher.Constraint("Equal", 39, 41),
    Sketcher.Constraint("Equal", 41, 43),
    Sketcher.Constraint("Equal", 26, 44),
    Sketcher.Constraint("Equal", 44, 47),
    Sketcher.Constraint("Equal", 43, 48),
    Sketcher.Constraint("Equal", 48, 50),
    Sketcher.Constraint("Equal", 50, 52),
    Sketcher.Constraint("Equal", 52, 54),
    Sketcher.Constraint("Equal", 54, 56),
    Sketcher.Constraint("Equal", 56, 58),
    Sketcher.Constraint("Equal", 58, 60),
    Sketcher.Constraint("Equal", 60, 62),
    Sketcher.Constraint("Equal", 62, 64),
    Sketcher.Constraint("Equal", 47, 65),
    Sketcher.Constraint("Equal", 65, 68),
    Sketcher.Constraint("Equal", 64, 69),
    Sketcher.Constraint("Equal", 69, 71),
    Sketcher.Constraint("Equal", 71, 73),
    Sketcher.Constraint("Equal", 73, 75),
    Sketcher.Constraint("Equal", 75, 77),
    Sketcher.Constraint("Equal", 77, 79),
    Sketcher.Constraint("Equal", 79, 81),
    Sketcher.Constraint("Equal", 81, 83),
    Sketcher.Constraint("Equal", 84, 85),
    Sketcher.Constraint("Equal", 85, 86),
    Sketcher.Constraint("Equal", 86, 88),
    Sketcher.Constraint("Perpendicular", 3, 4),
    Sketcher.Constraint("Parallel", 4, 24),
    Sketcher.Constraint("Perpendicular", 24, 25),
    Sketcher.Constraint("Parallel", 25, 45),
    Sketcher.Constraint("Perpendicular", 45, 46),
    Sketcher.Constraint("Parallel", 46, 66),
    Sketcher.Constraint("Perpendicular", 66, 67),
    Sketcher.Constraint("Horizontal", 1, 3, 6, 3),
    Sketcher.Constraint("Horizontal", 43, 3, 48, 3),
    Sketcher.Constraint("Horizontal", 41, 3, 50, 3),
    Sketcher.Constraint("Horizontal", 37, 3, 54, 3),
    Sketcher.Constraint("Horizontal", 33, 3, 58, 3),
    Sketcher.Constraint("Horizontal", 29, 3, 62, 3),
    Sketcher.Constraint("Horizontal", 26, 3, 65, 3),
    Sketcher.Constraint("Horizontal", 22, 3, 69, 3),
    Sketcher.Constraint("Horizontal", 18, 3, 73, 3),
    Sketcher.Constraint("Horizontal", 14, 3, 77, 3),
    Sketcher.Constraint("Horizontal", 10, 3, 81, 3),
    Sketcher.Constraint("Horizontal", 84, 3, 85, 3),
    Sketcher.Constraint("Horizontal", 68, 3, 87, 3),
    Sketcher.Constraint("Horizontal", 86, 3, 88, 3),
    Sketcher.Constraint("Horizontal", 2, 1, 4, 2),
    Sketcher.Constraint("Horizontal", 87, 3, 24, 2),
    Sketcher.Constraint("Horizontal", 44, 1, 46, 2),
    Sketcher.Constraint("Horizontal", 25, 2, 65, 1),
    Sketcher.Constraint("Horizontal", 24, 2, 66, 2),
    Sketcher.Constraint("Horizontal", 23, 1, 67, 2),
    Sketcher.Constraint("Vertical", 22, 3, 27, 3),
    Sketcher.Constraint("Vertical", 20, 3, 29, 3),
    Sketcher.Constraint("Vertical", 16, 3, 33, 3),
    Sketcher.Constraint("Vertical", 12, 3, 37, 3),
    Sketcher.Constraint("Vertical", 8, 3, 41, 3),
    Sketcher.Constraint("Vertical", 5, 3, 44, 3),
    Sketcher.Constraint("Vertical", 62, 3, 71, 3),
    Sketcher.Constraint("Vertical", 58, 3, 75, 3),
    Sketcher.Constraint("Vertical", 54, 3, 79, 3),
    Sketcher.Constraint("Vertical", 84, 3, 86, 3),
    Sketcher.Constraint("Vertical", 47, 3, 87, 3),
    Sketcher.Constraint("Vertical", 85, 3, 88, 3),
    Sketcher.Constraint("Vertical", 4, 2, 44, 1),
    Sketcher.Constraint("Equal", 9, 17),
    Sketcher.Constraint("Equal", 40, 51),
    Sketcher.Constraint("Equal", 36, 55),
    Sketcher.Constraint("Equal", 51, 59),
    Sketcher.Constraint("Equal", 28, 63),
    Sketcher.Constraint("Equal", 70, 0),
    Sketcher.Constraint("Equal", 82, 11),
    Sketcher.Constraint("Equal", 78, 15),
    Sketcher.Constraint("Equal", 11, 19),
    Sketcher.Constraint("Equal", 19, 30),
    Sketcher.Constraint("Equal", 15, 34),
    Sketcher.Constraint("Equal", 30, 38),
    Sketcher.Constraint("Equal", 7, 42),
    Sketcher.Constraint("Equal", 4, 24),
    Sketcher.Constraint("Diameter", 84, 4.0),
    Sketcher.Constraint("Diameter", 87, 4.3),
    Sketcher.Constraint("Radius", 1, 0.3),
    Sketcher.Constraint("DistanceX", 9, 1, 9, 2, 0.9),
    Sketcher.Constraint("DistanceX", 13, 2, 13, 1, 6.75),
    Sketcher.Constraint("Radius", 2, 6.490833),
    Sketcher.Constraint("DistanceX", 21, 1, 21, 2, 3.257251),
    Sketcher.Constraint("DistanceY", -1, 1, 43, 3, 1182.248799),
    Sketcher.Constraint("DistanceY", -1, 1, 2, 3, 1196.982382),
    Sketcher.Constraint("DistanceY", -1, 1, 8, 3, 1195.391548),
    Sketcher.Constraint("DistanceX", -1, 1, 65, 3, 2313.404761),
    Sketcher.Constraint("DistanceY", -1, 1, 84, 3, 1180.191548),
    Sketcher.Constraint("DistanceY", -1, 1, 86, 3, 1194.191548),
    Sketcher.Constraint("DistanceY", -1, 1, 3, 2, 1190.191548),
    Sketcher.Constraint("DistanceX", -1, 1, 84, 3, 2310.613927),
    Sketcher.Constraint("DistanceX", -1, 1, 85, 3, 2296.613927),
])
sketch1.setExpression("Constraints[219]", "Params.sketch1_diameter")
sketch1.setExpression("Constraints[220]", "Params.sketch1_diameter2")
sketch1.setExpression("Constraints[221]", "Params.sketch1_radius")
sketch1.setExpression("Constraints[222]", "Params.sketch1_width")
sketch1.setExpression("Constraints[223]", "Params.sketch1_width2")
pad1 = body.newObject("PartDesign::Pad", "Pad")
pad1.Profile = sketch1
pad1.setExpression("Length", "Params.pad1_length")

doc.recompute()
